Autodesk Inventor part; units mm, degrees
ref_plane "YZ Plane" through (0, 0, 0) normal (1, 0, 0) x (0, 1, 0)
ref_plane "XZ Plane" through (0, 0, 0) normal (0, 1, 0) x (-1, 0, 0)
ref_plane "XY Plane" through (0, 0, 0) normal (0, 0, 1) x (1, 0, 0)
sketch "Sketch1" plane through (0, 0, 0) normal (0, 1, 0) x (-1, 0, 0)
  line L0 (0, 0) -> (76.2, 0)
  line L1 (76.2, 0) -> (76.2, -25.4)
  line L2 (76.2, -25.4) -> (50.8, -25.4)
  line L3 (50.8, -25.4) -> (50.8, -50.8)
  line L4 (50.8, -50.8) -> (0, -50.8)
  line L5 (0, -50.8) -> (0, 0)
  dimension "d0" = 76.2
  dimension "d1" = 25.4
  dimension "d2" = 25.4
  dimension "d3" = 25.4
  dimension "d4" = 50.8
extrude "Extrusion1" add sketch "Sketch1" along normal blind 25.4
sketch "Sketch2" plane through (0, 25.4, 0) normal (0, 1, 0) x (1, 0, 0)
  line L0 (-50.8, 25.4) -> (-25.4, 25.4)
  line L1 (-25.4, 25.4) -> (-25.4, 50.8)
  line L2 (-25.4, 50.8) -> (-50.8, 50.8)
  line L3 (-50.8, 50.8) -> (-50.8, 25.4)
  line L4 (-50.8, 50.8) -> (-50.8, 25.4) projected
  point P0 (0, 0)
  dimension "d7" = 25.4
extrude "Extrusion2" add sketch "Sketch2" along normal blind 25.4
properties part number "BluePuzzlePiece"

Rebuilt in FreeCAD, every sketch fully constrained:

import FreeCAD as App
import Part
import Sketcher
from FreeCAD import Vector
Q = App.Units.Quantity


def add_polygon(sketch, points):
    """Adds a closed chain of lines whose ends are joined by coincident constraints."""
    first, n = sketch.GeometryCount, len(points)
    for a, b in zip(points, points[1:] + points[:1]):
        sketch.addGeometry(Part.LineSegment(App.Vector(*a, 0), App.Vector(*b, 0)), False)
    for i in range(n):
        sketch.addConstraint(Sketcher.Constraint("Coincident", first + i, 2, first + (i + 1) % n, 1))

doc = App.newDocument("Part")
body = doc.addObject("PartDesign::Body", "Body")

# Sketch on XZ plane
sketch1 = doc.addObject("Sketcher::SketchObject", "Sketch")
body.addObject(sketch1)
sketch1.AttachmentSupport = (doc.XZ_Plane, [""])
sketch1.MapMode = "FlatFace"
add_polygon(sketch1, [(-76.2, 0), (0, 0), (0, -50.8), (-50.8, -50.8), (-50.8, -25.4), (-76.2, -25.4)])  # lines 0-5
sketch1.addConstraint([
    Sketcher.Constraint("Horizontal", 0),
    Sketcher.Constraint("Vertical", 1),
    Sketcher.Constraint("Horizontal", 2),
    Sketcher.Constraint("Vertical", 3),
    Sketcher.Constraint("Horizontal", 4),
    Sketcher.Constraint("Vertical", 5),
    Sketcher.Constraint("Coincident", 0, 2, -1, 1),
    Sketcher.Constraint("Equal", 2, 1),
    Sketcher.Constraint("Equal", 4, 3),
    Sketcher.Constraint("Equal", 3, 5),
    Sketcher.Constraint("DistanceX", 0, 1, 0, 2, Q("3 in")),
])
pad1 = doc.addObject("PartDesign::Pad", "Pad")
body.addObject(pad1)
pad1.Profile = sketch1
pad1.Length = Q("1 in")
pad1.Reversed = True

# Sketch on XZ plane
sketch2 = doc.addObject("Sketcher::SketchObject", "Sketch001")
body.addObject(sketch2)
sketch2.AttachmentSupport = (doc.XZ_Plane, [""])
sketch2.MapMode = "FlatFace"
sketch2.AttachmentOffset = App.Placement(Vector(0, 0, -1 * 25.4), App.Rotation())
add_polygon(sketch2, [(-50.8, -50.8), (-50.8, -25.4), (-25.4, -25.4), (-25.4, -50.8)])  # lines 0-3
sketch2.addConstraint([
    Sketcher.Constraint("Vertical", 0),
    Sketcher.Constraint("Horizontal", 1),
    Sketcher.Constraint("Vertical", 2),
    Sketcher.Constraint("Horizontal", 3),
    Sketcher.Constraint("Equal", 3, 0),
    Sketcher.Constraint("DistanceX", 1, 1, 1, 2, Q("1 in")),
    Sketcher.Constraint("DistanceY", 0, 2, -1, 1, Q("1 in")),
    Sketcher.Constraint("DistanceX", 1, 2, -1, 1, Q("1 in")),
])
pad2 = doc.addObject("PartDesign::Pad", "Pad001")
body.addObject(pad2)
pad2.Profile = sketch2
pad2.Length = Q("1 in")
pad2.Reversed = True

doc.recompute()
